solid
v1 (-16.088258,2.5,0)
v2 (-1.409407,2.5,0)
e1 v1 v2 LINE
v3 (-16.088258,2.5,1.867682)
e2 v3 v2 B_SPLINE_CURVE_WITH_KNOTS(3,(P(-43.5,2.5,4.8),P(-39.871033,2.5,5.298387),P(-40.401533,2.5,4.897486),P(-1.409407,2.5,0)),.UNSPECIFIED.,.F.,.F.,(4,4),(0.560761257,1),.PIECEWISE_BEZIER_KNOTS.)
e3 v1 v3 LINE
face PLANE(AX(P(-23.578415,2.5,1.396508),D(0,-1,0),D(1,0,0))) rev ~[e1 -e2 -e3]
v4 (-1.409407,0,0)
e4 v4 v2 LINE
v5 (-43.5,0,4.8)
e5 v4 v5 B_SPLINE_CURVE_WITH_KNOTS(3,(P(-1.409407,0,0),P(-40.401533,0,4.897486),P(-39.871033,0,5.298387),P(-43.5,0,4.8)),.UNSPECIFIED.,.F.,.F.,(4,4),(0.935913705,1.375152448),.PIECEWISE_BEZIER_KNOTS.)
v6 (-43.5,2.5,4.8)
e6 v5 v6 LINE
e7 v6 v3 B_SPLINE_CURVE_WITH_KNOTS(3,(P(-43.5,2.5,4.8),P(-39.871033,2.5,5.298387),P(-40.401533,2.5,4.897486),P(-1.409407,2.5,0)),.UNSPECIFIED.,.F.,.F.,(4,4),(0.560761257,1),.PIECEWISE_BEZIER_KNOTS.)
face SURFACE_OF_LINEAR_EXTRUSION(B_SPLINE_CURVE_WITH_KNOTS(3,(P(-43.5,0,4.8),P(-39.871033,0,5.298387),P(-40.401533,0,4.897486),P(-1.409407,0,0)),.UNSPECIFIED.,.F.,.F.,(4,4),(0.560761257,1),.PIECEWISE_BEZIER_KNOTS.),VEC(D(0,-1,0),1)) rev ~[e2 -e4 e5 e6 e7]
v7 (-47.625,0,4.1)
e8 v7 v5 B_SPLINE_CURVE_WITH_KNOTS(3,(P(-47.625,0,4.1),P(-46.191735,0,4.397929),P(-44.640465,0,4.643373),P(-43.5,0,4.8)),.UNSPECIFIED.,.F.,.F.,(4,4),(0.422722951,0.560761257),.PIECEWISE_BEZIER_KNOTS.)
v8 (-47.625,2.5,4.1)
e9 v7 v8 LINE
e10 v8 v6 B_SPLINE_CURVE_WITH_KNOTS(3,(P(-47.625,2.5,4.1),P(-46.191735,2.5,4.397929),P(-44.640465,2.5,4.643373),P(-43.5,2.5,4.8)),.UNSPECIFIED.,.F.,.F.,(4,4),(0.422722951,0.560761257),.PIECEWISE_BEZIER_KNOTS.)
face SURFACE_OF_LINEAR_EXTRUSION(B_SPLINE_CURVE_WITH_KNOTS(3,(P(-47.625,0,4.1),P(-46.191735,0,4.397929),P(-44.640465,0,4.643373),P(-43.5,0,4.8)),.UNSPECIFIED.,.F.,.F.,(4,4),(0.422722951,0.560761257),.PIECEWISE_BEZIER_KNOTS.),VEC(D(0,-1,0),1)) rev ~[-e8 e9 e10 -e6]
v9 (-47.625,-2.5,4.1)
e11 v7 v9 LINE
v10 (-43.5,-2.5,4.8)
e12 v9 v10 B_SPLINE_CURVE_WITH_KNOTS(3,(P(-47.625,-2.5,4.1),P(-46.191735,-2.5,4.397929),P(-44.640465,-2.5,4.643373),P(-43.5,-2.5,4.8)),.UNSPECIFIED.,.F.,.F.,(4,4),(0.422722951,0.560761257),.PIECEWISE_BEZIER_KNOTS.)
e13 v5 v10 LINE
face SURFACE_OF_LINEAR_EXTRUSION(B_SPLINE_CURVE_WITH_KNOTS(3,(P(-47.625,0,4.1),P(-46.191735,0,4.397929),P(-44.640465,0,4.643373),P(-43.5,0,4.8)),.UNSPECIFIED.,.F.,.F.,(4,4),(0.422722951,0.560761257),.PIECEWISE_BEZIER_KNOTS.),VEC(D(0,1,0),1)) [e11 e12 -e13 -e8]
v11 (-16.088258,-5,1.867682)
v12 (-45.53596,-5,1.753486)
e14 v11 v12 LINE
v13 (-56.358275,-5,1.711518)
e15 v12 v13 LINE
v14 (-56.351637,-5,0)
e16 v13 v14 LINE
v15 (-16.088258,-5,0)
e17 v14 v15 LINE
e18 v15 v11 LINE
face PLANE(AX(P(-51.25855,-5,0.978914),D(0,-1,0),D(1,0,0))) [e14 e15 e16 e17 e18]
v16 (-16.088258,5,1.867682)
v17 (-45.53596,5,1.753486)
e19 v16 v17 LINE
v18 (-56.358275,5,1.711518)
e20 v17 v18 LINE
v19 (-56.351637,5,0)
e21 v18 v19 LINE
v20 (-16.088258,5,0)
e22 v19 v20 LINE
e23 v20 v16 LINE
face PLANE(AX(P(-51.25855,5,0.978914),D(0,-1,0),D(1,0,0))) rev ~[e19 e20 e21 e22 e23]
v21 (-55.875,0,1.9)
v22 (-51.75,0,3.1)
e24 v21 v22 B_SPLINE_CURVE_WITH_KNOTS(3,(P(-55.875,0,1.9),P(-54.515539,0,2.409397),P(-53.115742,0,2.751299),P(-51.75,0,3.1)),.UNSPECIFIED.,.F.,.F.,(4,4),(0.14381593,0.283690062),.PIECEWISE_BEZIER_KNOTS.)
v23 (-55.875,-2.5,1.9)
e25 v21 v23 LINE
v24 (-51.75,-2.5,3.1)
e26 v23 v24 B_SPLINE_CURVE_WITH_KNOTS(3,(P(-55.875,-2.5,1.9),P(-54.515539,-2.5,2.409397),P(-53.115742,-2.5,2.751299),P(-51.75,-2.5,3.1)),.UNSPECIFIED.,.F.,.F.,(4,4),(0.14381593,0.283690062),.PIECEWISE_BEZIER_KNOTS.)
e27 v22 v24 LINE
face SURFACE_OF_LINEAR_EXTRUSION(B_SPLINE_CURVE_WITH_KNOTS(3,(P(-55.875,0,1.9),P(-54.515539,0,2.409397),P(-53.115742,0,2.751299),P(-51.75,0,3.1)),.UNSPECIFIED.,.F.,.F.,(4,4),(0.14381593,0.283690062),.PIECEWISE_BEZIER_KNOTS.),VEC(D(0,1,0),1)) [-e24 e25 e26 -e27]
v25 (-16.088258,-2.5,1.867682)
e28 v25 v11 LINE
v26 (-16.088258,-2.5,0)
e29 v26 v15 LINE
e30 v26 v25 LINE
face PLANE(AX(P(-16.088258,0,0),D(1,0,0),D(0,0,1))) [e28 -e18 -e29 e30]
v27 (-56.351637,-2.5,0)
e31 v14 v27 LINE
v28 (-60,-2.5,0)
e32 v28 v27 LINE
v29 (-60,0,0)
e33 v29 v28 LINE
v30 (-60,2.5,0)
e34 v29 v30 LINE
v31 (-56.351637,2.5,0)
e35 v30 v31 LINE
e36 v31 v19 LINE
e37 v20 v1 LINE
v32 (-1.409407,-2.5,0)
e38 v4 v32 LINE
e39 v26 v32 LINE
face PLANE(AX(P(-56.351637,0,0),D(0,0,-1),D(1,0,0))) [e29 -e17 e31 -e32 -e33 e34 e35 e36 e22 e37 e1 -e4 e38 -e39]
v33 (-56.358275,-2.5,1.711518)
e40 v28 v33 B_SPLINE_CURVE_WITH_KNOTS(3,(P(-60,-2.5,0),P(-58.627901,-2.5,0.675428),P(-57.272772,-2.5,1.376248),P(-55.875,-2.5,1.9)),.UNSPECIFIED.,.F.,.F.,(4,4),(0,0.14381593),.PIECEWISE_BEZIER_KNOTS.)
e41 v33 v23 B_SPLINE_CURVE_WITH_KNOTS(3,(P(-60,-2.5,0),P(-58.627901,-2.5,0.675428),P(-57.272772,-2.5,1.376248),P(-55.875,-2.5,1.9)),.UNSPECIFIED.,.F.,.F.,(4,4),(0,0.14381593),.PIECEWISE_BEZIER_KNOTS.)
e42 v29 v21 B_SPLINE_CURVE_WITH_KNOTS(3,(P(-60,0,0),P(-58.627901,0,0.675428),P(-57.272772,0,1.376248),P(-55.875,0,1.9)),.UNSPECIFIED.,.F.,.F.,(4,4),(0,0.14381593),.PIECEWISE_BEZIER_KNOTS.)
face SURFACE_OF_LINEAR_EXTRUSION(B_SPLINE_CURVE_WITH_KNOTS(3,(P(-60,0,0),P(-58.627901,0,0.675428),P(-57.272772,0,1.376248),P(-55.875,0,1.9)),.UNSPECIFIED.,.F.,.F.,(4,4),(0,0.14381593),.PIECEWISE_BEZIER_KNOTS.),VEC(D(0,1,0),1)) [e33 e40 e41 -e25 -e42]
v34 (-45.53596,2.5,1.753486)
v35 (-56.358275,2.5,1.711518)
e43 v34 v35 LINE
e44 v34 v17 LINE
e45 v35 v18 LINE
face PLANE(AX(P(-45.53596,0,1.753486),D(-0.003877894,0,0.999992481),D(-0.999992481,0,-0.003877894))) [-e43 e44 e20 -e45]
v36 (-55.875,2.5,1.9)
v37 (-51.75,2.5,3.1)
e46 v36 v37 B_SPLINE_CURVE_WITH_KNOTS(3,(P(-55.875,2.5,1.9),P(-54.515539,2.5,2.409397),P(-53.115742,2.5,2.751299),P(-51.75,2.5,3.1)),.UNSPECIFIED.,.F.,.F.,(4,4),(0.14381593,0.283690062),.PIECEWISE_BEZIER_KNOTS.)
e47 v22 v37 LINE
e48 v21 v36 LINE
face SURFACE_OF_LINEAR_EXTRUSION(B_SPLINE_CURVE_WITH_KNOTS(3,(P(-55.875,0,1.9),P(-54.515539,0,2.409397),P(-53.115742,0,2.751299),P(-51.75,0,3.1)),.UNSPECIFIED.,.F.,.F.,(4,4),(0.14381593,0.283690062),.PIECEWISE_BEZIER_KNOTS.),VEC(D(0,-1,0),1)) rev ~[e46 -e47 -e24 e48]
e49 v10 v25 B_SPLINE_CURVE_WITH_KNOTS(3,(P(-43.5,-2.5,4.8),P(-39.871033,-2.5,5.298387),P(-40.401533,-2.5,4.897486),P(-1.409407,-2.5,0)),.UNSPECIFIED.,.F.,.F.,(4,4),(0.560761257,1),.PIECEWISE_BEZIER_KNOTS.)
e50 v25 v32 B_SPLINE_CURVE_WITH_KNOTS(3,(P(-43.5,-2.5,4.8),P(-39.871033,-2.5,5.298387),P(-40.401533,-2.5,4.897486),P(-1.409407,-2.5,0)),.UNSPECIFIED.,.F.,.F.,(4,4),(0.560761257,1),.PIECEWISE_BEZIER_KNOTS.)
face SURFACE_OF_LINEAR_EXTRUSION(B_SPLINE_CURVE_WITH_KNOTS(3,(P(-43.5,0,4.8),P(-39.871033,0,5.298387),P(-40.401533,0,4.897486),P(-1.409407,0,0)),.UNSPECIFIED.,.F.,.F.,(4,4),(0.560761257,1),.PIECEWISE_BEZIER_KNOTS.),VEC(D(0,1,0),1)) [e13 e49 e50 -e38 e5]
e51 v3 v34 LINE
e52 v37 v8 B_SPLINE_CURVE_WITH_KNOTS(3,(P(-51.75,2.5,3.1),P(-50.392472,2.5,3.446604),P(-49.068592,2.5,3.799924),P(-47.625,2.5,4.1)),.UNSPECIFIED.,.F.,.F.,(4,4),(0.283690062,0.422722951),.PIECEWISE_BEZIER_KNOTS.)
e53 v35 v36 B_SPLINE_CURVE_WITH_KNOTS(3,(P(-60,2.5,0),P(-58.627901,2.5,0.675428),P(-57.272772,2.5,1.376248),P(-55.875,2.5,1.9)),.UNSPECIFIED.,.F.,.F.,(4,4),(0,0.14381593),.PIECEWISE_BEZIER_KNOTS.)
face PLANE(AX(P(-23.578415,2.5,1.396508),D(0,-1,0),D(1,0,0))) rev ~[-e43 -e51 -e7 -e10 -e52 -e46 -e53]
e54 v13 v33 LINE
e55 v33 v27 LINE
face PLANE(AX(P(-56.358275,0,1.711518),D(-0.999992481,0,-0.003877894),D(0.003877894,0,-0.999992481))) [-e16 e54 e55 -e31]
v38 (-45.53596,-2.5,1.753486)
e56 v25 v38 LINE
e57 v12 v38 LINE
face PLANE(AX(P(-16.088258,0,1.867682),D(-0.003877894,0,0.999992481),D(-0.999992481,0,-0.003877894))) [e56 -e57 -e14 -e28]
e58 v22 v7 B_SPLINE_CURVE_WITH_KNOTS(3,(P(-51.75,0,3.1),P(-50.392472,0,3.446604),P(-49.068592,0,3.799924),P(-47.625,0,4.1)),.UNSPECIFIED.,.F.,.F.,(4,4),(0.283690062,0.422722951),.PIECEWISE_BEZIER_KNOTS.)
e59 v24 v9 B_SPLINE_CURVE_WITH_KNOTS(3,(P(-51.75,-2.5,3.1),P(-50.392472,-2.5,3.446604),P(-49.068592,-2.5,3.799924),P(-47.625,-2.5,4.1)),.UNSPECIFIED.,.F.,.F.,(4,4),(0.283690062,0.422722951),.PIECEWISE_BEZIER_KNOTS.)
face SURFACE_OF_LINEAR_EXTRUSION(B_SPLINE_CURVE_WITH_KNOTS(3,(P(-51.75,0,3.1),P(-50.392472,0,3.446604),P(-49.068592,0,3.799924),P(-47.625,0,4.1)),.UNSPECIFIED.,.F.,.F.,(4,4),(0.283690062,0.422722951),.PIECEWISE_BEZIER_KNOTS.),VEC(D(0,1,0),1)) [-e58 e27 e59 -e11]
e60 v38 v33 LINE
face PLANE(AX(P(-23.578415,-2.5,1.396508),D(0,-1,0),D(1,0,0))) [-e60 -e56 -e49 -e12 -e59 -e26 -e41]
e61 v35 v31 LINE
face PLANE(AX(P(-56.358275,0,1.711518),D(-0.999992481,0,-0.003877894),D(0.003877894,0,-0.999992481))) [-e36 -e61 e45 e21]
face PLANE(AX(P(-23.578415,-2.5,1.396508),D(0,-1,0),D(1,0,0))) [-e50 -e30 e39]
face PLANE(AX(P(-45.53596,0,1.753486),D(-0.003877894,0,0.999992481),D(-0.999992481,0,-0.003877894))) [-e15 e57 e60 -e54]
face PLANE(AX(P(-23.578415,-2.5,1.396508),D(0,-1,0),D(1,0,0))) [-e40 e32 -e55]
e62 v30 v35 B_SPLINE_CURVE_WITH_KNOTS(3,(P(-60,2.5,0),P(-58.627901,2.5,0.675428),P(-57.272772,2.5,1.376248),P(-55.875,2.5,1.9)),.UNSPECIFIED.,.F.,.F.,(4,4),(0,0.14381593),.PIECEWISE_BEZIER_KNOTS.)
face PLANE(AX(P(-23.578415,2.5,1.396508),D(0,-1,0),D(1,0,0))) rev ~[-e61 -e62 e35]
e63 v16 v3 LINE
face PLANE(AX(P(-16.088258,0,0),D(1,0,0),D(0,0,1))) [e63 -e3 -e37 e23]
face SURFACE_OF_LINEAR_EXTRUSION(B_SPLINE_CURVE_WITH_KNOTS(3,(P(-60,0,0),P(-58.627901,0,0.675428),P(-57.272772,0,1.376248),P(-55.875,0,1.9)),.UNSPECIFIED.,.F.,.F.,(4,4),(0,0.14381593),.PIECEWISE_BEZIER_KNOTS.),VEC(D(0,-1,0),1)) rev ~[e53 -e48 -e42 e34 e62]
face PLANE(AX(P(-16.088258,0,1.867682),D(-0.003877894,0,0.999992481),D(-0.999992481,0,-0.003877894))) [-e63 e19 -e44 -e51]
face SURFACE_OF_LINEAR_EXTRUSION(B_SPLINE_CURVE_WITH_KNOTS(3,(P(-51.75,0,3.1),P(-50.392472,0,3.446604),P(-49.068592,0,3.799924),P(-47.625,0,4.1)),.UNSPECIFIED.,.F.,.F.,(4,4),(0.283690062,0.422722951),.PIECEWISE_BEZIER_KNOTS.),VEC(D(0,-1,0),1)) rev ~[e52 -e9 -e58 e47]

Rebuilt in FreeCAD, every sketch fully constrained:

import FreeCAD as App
import Part
import Sketcher

V = App.Vector

doc = App.newDocument("Part")
params = doc.addObject("Spreadsheet::Sheet", "Params")
for row, (alias, value) in enumerate([
    ("pad1_length", "5 mm"),
    ("pad2_length", "10 mm"),
], start=1):
    params.set(f"A{row}", alias)
    params.set(f"B{row}", "=" + value)
    params.setAlias(f"B{row}", alias)

body = doc.addObject("PartDesign::Body", "Body")

sketch1 = doc.addObject("Sketcher::SketchObject", "Sketch")
body.addObject(sketch1)
sketch1.AttachmentSupport = (doc.XZ_Plane, [""])
sketch1.MapMode = "FlatFace"
sketch1.addGeometry(Part.BSplineCurve([V(-43.5, 4.8, 0), V(-39.871033, 5.298387, 0), V(-40.401533, 4.897486, 0), V(-1.409407, 0, 0)], [4, 4], [0.560761257, 1], False, 3, [1, 1, 1, 1], False), False)
sketch1.addGeometry(Part.BSplineCurve([V(-47.625, 4.1, 0), V(-46.191735, 4.397929, 0), V(-44.640465, 4.643373, 0), V(-43.5, 4.8, 0)], [4, 4], [0.422722951, 0.560761257], False, 3, [1, 1, 1, 1], False), False)
sketch1.addGeometry(Part.BSplineCurve([V(-51.75, 3.1, 0), V(-50.392472, 3.446604, 0), V(-49.068592, 3.799924, 0), V(-47.625, 4.1, 0)], [4, 4], [0.283690062, 0.422722951], False, 3, [1, 1, 1, 1], False), False)
sketch1.addGeometry(Part.BSplineCurve([V(-55.875, 1.9, 0), V(-54.515539, 2.409397, 0), V(-53.115742, 2.751299, 0), V(-51.75, 3.1, 0)], [4, 4], [0.14381593, 0.283690062], False, 3, [1, 1, 1, 1], False), False)
sketch1.addGeometry(Part.BSplineCurve([V(-60, 0, 0), V(-58.627901, 0.675428, 0), V(-57.272772, 1.376248, 0), V(-55.875, 1.9, 0)], [4, 4], [0, 0.14381593], False, 3, [1, 1, 1, 1], False), False)
sketch1.addGeometry(Part.LineSegment(V(-60, 0, 0), V(-1.409407, 0, 0)), False)
sketch1.addConstraint(Sketcher.Constraint("Block", 0))
sketch1.addConstraint(Sketcher.Constraint("Block", 1))
sketch1.addConstraint(Sketcher.Constraint("Block", 2))
sketch1.addConstraint(Sketcher.Constraint("Block", 3))
sketch1.addConstraint(Sketcher.Constraint("Block", 4))
sketch1.addConstraint(Sketcher.Constraint("Coincident", 4, 1, 5, 1))
sketch1.addConstraint(Sketcher.Constraint("Coincident", 5, 2, 0, 2))
pad1 = doc.addObject("PartDesign::Pad", "Pad")
body.addObject(pad1)
pad1.Profile = sketch1
pad1.setExpression("Length", "Params.pad1_length")
pad1.Midplane = True

sketch2 = doc.addObject("Sketcher::SketchObject", "Sketch001")
body.addObject(sketch2)
sketch2.AttachmentSupport = (doc.XZ_Plane, [""])
sketch2.MapMode = "FlatFace"
sketch2.addGeometry(Part.LineSegment(V(-56.4, 0, 0), V(-16.1, 0, 0)), False)
sketch2.addGeometry(Part.LineSegment(V(-16.1, 0, 0), V(-16.1, 1.9, 0)), False)
sketch2.addGeometry(Part.LineSegment(V(-16.1, 1.9, 0), V(-45.5, 1.8, 0)), False)
sketch2.addGeometry(Part.LineSegment(V(-45.5, 1.8, 0), V(-56.4, 1.7, 0)), False)
sketch2.addGeometry(Part.LineSegment(V(-56.4, 1.7, 0), V(-56.4, 0, 0)), False)
sketch2.addConstraint(Sketcher.Constraint("Coincident", 0, 2, 1, 1))
sketch2.addConstraint(Sketcher.Constraint("Coincident", 1, 2, 2, 1))
sketch2.addConstraint(Sketcher.Constraint("Coincident", 2, 2, 3, 1))
sketch2.addConstraint(Sketcher.Constraint("Coincident", 3, 2, 4, 1))
sketch2.addConstraint(Sketcher.Constraint("Coincident", 4, 2, 0, 1))
sketch2.addConstraint(Sketcher.Constraint("Horizontal", 0))
sketch2.addConstraint(Sketcher.Constraint("Vertical", 1))
sketch2.addConstraint(Sketcher.Constraint("PointOnObject", 0, 2, -1))
sketch2.addConstraint(Sketcher.Constraint("Parallel", 2, 3))
sketch2.addConstraint(Sketcher.Constraint("Perpendicular", 3, 4))
sketch2.addConstraint(Sketcher.Constraint("DistanceX", 0, 1, 0, 2, 40.263379))
sketch2.addConstraint(Sketcher.Constraint("DistanceX", 2, 2, 1, 2, 29.447702))
sketch2.addConstraint(Sketcher.Constraint("Distance", 4, 1.711531))
sketch2.addConstraint(Sketcher.Constraint("DistanceY", 1, 1, 1, 2, 1.867682))
sketch2.addConstraint(Sketcher.Constraint("DistanceX", 0, 2, -1, 1, 16.088258))
pad2 = doc.addObject("PartDesign::Pad", "Pad001")
body.addObject(pad2)
pad2.Profile = sketch2
pad2.setExpression("Length", "Params.pad2_length")
pad2.Midplane = True

doc.recompute()
